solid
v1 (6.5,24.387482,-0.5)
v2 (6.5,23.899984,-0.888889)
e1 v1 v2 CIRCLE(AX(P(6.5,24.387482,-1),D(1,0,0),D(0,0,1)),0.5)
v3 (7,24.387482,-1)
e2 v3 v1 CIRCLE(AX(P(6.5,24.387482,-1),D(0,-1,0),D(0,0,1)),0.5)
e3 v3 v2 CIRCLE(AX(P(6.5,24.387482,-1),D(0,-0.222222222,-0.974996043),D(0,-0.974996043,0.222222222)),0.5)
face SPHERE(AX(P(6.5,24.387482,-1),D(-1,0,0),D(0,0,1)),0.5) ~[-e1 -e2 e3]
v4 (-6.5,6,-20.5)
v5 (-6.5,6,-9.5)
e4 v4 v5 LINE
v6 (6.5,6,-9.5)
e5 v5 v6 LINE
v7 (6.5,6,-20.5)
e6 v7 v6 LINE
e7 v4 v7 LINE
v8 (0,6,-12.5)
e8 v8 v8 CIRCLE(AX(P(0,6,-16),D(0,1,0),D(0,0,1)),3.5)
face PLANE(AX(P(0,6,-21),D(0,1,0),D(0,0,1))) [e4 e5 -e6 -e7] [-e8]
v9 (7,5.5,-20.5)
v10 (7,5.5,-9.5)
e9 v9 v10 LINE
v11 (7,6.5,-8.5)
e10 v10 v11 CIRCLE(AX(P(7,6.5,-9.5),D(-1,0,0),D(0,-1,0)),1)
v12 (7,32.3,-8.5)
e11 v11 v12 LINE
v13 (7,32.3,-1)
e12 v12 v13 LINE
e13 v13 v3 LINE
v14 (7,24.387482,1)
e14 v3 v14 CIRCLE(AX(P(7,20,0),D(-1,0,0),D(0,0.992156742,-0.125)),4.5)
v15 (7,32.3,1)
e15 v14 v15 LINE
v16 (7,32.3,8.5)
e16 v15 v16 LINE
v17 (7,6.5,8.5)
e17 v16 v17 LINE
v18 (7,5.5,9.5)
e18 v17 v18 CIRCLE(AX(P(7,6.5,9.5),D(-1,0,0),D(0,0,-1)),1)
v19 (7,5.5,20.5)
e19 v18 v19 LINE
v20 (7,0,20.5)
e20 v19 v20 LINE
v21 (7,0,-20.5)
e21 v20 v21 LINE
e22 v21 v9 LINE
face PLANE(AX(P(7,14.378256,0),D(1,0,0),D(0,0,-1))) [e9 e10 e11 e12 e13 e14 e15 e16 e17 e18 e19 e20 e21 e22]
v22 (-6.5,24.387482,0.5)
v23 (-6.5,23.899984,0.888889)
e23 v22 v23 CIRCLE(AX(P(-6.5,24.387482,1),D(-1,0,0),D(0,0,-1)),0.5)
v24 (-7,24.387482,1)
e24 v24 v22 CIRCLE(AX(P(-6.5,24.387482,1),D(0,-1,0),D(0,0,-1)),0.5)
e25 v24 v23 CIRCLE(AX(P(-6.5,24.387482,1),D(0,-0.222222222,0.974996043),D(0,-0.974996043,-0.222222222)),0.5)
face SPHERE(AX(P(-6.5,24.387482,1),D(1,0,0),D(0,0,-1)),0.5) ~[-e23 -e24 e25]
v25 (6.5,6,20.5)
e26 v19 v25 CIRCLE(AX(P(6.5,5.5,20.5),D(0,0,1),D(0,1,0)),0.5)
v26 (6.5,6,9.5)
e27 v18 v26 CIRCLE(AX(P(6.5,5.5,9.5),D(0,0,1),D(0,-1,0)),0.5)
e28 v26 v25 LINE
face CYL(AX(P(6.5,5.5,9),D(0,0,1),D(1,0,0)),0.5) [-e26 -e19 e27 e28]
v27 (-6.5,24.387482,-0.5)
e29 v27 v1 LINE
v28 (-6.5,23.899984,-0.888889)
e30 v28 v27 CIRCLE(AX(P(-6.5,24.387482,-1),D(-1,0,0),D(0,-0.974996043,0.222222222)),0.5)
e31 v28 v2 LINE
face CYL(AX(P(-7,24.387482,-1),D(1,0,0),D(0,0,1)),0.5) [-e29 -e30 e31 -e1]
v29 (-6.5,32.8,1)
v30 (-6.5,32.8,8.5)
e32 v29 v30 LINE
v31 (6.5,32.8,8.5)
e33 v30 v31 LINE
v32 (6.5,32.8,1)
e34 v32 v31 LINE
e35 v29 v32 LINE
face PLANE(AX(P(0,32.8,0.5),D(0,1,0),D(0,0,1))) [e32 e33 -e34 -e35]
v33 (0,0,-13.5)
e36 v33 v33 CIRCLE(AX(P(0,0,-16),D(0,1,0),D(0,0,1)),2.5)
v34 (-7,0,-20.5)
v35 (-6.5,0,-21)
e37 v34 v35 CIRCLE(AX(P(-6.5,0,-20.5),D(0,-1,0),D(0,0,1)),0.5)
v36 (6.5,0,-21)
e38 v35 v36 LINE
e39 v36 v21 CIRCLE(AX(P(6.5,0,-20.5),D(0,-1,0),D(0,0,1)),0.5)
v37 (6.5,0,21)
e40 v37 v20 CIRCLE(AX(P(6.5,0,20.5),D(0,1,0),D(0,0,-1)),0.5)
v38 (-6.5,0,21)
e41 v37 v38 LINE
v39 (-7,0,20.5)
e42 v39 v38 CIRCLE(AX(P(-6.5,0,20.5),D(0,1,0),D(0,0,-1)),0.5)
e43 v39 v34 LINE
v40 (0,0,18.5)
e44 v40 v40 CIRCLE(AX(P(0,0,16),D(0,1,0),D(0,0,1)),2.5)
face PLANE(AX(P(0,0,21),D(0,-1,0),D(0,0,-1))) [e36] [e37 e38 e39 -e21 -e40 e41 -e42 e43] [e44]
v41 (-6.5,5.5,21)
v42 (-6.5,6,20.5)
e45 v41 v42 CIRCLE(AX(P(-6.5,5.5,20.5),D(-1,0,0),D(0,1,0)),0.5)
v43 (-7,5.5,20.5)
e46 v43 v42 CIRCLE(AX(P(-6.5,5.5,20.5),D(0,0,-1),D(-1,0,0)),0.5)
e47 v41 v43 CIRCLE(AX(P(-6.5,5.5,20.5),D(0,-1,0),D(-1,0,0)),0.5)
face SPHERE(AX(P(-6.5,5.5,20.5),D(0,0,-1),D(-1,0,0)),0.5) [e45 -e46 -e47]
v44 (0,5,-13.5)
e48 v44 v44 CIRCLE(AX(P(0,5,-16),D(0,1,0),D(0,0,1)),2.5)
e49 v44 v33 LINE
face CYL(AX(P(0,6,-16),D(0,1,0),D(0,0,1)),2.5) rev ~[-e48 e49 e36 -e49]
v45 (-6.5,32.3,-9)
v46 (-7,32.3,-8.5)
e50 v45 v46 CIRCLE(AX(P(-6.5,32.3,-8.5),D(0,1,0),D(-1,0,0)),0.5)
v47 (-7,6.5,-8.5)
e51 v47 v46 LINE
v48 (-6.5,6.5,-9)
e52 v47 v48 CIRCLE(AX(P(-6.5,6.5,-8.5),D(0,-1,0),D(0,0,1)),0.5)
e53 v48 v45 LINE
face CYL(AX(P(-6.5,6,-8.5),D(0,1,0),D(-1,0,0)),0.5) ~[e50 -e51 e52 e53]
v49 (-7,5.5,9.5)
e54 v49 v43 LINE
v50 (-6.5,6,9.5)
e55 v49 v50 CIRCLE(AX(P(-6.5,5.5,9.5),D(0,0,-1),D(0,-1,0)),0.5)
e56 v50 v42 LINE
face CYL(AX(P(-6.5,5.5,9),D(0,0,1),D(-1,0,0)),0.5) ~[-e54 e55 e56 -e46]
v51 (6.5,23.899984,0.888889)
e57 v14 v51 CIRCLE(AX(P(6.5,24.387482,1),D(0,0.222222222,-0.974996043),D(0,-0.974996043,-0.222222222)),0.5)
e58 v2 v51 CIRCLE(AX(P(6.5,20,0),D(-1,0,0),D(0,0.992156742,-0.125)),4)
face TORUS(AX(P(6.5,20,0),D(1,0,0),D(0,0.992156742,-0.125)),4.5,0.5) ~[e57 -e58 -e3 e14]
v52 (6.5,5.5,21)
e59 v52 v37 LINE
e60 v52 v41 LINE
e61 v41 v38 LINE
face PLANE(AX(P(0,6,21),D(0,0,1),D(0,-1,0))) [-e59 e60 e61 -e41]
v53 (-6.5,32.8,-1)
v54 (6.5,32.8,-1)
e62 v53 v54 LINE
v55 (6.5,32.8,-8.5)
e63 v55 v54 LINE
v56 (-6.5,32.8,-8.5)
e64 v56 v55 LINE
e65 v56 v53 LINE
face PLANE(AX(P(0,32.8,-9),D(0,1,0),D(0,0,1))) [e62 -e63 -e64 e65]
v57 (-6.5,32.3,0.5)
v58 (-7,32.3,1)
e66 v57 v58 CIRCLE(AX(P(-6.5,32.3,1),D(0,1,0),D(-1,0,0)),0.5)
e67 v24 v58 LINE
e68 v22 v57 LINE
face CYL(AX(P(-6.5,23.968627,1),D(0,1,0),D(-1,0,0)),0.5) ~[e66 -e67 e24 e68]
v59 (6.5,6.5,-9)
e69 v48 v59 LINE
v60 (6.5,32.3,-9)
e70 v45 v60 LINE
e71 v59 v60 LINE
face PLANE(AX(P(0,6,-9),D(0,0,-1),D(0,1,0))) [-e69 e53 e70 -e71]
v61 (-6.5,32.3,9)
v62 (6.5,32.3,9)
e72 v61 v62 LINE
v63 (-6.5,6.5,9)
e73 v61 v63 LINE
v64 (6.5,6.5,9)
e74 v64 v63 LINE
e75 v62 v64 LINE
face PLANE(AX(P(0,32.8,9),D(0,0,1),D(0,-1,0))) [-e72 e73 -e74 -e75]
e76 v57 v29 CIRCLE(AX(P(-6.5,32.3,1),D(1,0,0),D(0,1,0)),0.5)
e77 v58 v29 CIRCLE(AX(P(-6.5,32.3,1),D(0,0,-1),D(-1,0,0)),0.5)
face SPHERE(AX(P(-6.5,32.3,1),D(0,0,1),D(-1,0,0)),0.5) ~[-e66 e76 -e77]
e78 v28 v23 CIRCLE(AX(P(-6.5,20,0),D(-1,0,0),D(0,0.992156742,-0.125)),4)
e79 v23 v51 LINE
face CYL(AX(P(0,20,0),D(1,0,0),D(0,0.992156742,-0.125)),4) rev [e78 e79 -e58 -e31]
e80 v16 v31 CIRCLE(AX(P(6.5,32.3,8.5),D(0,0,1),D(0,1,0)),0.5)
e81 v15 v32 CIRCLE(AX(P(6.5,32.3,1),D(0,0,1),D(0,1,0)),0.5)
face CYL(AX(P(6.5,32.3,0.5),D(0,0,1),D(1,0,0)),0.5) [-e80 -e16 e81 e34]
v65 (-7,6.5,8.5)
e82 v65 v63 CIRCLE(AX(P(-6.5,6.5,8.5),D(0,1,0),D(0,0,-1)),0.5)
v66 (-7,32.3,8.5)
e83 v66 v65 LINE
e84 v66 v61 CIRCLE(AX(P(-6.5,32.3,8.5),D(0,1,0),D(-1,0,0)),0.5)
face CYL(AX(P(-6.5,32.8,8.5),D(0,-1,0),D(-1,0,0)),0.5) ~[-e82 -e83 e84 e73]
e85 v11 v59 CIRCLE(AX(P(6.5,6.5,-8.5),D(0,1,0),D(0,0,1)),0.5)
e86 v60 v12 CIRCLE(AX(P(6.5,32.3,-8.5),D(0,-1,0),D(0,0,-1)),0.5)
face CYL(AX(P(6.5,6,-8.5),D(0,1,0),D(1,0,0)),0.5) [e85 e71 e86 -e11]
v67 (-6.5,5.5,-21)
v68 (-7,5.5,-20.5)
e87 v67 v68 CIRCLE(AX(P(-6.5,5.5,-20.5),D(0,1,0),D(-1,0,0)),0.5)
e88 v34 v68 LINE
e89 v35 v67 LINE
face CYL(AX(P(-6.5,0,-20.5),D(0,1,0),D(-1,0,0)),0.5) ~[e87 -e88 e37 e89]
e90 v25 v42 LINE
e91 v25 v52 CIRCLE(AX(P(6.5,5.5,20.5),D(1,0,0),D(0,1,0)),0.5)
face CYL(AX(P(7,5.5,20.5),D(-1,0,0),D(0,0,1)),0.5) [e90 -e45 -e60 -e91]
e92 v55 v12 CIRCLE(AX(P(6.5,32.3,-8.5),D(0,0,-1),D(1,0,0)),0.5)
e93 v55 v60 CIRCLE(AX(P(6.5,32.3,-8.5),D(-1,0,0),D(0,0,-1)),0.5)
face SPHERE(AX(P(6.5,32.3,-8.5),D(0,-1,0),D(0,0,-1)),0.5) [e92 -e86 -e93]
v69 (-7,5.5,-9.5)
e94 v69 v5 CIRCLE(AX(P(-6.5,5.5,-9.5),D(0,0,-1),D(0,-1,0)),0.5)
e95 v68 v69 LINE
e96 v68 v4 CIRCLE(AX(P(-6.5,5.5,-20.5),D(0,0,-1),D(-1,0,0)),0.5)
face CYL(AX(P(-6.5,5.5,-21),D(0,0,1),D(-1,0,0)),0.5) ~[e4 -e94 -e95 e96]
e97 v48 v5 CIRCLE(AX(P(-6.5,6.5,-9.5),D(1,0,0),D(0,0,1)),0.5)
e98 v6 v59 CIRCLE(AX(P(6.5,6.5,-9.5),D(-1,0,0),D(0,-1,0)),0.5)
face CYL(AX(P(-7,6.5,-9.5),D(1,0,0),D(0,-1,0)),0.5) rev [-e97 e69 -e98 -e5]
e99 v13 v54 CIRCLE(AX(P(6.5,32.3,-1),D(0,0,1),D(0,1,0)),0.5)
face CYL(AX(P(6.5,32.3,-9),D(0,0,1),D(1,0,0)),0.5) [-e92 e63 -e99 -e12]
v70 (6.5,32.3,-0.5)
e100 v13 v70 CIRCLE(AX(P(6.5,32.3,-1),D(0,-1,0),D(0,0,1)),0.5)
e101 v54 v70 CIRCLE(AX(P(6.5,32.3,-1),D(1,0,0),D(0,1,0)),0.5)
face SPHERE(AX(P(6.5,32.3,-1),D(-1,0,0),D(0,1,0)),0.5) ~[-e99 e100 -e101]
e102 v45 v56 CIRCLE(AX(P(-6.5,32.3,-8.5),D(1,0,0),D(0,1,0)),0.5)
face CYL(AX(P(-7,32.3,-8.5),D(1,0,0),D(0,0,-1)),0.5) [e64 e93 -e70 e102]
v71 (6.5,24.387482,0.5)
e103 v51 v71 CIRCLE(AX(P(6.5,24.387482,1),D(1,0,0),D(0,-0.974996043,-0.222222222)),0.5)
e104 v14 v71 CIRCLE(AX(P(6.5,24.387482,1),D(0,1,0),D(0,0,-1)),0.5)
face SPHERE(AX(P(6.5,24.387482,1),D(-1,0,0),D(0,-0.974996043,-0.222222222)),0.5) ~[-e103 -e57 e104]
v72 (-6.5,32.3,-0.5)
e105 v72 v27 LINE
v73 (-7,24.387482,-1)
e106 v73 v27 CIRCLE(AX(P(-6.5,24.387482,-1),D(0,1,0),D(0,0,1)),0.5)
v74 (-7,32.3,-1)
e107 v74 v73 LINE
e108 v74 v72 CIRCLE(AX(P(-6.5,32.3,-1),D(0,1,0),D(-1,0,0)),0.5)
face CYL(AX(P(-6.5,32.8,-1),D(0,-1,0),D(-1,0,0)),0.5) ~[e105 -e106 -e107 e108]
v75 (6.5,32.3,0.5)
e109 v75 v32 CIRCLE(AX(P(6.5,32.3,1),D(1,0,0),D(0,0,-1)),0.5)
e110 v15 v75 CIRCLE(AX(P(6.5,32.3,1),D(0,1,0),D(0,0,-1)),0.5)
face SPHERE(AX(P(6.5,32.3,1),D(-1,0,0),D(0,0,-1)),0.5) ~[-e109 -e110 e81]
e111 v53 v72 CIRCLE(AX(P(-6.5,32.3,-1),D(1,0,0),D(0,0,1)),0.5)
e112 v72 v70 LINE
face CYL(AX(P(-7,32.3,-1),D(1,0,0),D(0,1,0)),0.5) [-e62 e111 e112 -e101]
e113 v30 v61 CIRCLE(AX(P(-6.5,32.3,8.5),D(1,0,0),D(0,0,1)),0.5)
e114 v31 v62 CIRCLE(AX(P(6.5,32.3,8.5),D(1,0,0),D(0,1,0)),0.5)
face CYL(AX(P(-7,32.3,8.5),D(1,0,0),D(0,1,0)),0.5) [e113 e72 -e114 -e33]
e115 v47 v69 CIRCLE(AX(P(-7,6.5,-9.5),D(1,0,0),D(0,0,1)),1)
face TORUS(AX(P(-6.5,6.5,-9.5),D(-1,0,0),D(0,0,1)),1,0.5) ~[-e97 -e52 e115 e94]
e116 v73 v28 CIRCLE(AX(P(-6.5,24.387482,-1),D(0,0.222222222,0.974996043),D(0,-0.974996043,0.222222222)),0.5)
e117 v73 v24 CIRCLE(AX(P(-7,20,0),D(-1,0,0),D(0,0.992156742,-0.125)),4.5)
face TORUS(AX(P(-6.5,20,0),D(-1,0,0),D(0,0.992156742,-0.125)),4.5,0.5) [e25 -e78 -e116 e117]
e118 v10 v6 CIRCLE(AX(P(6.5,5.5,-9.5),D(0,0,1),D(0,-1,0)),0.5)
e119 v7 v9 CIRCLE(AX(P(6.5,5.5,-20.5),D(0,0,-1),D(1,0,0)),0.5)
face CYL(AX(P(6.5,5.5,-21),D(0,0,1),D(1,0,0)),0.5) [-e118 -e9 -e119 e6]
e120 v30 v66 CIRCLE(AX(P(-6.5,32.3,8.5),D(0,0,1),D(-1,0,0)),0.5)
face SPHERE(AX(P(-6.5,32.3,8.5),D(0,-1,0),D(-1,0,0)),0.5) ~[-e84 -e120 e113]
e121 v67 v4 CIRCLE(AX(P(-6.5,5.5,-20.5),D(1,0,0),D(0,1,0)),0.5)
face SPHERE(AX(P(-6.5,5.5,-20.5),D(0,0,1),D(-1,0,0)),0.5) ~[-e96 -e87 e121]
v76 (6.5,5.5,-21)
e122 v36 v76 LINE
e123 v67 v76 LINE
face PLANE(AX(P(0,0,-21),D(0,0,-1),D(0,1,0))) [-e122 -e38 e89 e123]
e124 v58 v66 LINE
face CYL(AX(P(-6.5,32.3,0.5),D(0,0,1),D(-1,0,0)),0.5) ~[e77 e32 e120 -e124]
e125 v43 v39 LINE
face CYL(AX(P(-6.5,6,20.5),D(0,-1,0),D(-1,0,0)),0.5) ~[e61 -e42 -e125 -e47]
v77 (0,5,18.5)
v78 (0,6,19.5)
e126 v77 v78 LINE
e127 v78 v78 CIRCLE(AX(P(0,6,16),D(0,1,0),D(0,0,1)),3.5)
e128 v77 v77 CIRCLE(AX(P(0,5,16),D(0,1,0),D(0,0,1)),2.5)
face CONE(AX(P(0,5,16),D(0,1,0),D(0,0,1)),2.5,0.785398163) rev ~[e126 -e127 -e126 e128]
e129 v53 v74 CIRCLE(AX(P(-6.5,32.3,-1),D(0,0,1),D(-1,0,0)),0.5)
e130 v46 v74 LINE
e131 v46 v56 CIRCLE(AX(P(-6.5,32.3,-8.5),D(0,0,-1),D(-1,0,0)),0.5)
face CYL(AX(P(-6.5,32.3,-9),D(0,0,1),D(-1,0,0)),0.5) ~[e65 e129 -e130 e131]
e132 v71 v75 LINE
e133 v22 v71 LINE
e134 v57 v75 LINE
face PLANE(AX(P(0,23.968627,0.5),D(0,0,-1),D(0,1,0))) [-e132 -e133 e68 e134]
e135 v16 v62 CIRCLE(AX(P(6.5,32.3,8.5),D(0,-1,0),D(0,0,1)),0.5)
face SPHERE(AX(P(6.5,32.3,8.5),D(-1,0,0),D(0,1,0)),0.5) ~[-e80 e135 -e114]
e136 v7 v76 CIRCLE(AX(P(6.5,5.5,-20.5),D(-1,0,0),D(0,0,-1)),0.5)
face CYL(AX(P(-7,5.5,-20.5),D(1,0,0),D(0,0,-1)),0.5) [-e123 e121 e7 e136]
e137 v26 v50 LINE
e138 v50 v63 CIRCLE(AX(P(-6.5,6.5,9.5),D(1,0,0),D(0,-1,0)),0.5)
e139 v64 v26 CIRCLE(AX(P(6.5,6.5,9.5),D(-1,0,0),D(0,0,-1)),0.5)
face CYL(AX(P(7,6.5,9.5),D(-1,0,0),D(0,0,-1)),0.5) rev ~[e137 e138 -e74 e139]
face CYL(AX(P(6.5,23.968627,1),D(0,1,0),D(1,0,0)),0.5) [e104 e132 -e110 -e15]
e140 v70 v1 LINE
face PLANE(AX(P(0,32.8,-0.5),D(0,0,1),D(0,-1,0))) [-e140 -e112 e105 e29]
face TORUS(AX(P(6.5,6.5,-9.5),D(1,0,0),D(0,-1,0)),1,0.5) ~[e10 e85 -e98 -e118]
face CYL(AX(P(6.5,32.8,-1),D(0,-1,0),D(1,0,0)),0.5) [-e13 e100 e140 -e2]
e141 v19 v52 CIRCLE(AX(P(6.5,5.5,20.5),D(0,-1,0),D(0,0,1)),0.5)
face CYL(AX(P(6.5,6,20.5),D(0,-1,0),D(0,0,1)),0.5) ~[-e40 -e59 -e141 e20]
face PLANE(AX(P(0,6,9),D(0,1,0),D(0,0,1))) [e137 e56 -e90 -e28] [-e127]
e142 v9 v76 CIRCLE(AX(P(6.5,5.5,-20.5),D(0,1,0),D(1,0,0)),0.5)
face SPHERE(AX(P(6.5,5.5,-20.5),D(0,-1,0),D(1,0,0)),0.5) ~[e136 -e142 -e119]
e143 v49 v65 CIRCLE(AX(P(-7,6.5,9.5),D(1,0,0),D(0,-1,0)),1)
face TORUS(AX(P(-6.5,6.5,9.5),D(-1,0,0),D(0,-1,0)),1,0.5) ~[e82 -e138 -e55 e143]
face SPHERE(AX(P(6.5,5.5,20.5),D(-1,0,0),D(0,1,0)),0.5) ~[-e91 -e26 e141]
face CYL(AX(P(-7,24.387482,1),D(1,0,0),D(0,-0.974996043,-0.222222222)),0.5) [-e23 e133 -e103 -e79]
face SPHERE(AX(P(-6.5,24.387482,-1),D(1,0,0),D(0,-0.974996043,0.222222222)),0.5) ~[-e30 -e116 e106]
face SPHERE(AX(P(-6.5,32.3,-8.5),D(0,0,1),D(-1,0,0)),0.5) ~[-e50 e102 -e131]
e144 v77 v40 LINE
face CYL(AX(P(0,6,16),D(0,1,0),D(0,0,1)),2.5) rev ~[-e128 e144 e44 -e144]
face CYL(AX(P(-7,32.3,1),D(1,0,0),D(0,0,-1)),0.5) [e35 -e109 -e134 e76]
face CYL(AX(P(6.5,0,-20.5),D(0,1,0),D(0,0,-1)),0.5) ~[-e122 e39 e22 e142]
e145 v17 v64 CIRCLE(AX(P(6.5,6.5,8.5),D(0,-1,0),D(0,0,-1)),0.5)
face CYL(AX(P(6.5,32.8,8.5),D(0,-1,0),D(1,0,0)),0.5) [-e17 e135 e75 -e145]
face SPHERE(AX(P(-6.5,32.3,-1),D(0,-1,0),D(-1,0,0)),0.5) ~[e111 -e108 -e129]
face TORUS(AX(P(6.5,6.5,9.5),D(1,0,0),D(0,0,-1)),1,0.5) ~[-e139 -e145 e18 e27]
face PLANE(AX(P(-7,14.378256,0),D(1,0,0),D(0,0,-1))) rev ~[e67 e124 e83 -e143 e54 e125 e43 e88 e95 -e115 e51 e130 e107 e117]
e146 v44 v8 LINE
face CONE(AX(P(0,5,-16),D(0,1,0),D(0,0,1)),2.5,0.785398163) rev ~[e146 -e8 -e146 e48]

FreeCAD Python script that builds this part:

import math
import FreeCAD as App
import Part
import Sketcher
from FreeCAD import Vector
Q = App.Units.Quantity


def edges_at(feature, points):
    """Names of the edges that pass closest to the given points."""
    edges = feature.Shape.Edges
    near = lambda p: min(range(len(edges)), key=lambda i: edges[i].distToShape(Part.Vertex(*p))[0])
    return sorted({f"Edge{near(p) + 1}" for p in points})

doc = App.newDocument("Part")
body = doc.addObject("PartDesign::Body", "Body")

sketch1 = body.newObject("Sketcher::SketchObject", "Sketch")
sketch1.AttachmentSupport = (doc.getObject("YZ_Plane"), [""])
sketch1.MapMode = "FlatFace"
sketch1.addGeometry([
    Part.LineSegment(Vector(0, 21, 0), Vector(0, -21, 0)),
    Part.LineSegment(Vector(0, -21, 0), Vector(6, -21, 0)),
    Part.LineSegment(Vector(6, -21, 0), Vector(6, -9, 0)),
    Part.LineSegment(Vector(6, -9, 0), Vector(32.8, -9, 0)),
    Part.LineSegment(Vector(32.8, -9, 0), Vector(32.8, -0.5, 0)),
    Part.LineSegment(Vector(32.8, -0.5, 0), Vector(24, -0.5, 0)),
    Part.ArcOfCircle(Part.Circle(Vector(20, 0, 0), Vector(0, 0, 1), 4), math.radians(7), math.radians(353)),
    Part.LineSegment(Vector(24, 0.5, 0), Vector(32.8, 0.5, 0)),
    Part.LineSegment(Vector(32.8, 0.5, 0), Vector(32.8, 9, 0)),
    Part.LineSegment(Vector(32.8, 9, 0), Vector(6, 9, 0)),
    Part.LineSegment(Vector(6, 9, 0), Vector(6, 21, 0)),
    Part.LineSegment(Vector(6, 21, 0), Vector(0, 21, 0)),
], False)
sketch1.addConstraint([
    Sketcher.Constraint("Coincident", 0, 2, 1, 1),
    Sketcher.Constraint("Coincident", 1, 2, 2, 1),
    Sketcher.Constraint("Coincident", 2, 2, 3, 1),
    Sketcher.Constraint("Coincident", 3, 2, 4, 1),
    Sketcher.Constraint("Coincident", 4, 2, 5, 1),
    Sketcher.Constraint("Coincident", 5, 2, 6, 2),
    Sketcher.Constraint("Coincident", 6, 1, 7, 1),
    Sketcher.Constraint("Coincident", 7, 2, 8, 1),
    Sketcher.Constraint("Coincident", 8, 2, 9, 1),
    Sketcher.Constraint("Coincident", 9, 2, 10, 1),
    Sketcher.Constraint("Coincident", 10, 2, 11, 1),
    Sketcher.Constraint("Coincident", 11, 2, 0, 1),
    Sketcher.Constraint("Vertical", 0),
    Sketcher.Constraint("Horizontal", 1),
    Sketcher.Constraint("Vertical", 2),
    Sketcher.Constraint("Horizontal", 3),
    Sketcher.Constraint("Vertical", 4),
    Sketcher.Constraint("Horizontal", 5),
    Sketcher.Constraint("Horizontal", 7),
    Sketcher.Constraint("Vertical", 8),
    Sketcher.Constraint("Horizontal", 9),
    Sketcher.Constraint("Vertical", 10),
    Sketcher.Constraint("Horizontal", 11),
    Sketcher.Constraint("Symmetric", 0, 2, 11, 2, -1, 1),
    Sketcher.Constraint("Symmetric", 5, 2, 6, 1, -1),
    Sketcher.Constraint("Symmetric", 3, 2, 8, 2, -1),
    Sketcher.Constraint("Vertical", 2, 2, 9, 2),
    Sketcher.Constraint("Radius", 6, Q("4 mm")),
    Sketcher.Constraint("DistanceX", 1, 1, 1, 2, Q("6 mm")),
    Sketcher.Constraint("DistanceY", 0, 2, 0, 1, Q("42 mm")),
    Sketcher.Constraint("DistanceY", 2, 1, 2, 2, Q("12 mm")),
    Sketcher.Constraint("DistanceX", 3, 1, 3, 2, Q("26.8 mm")),
    Sketcher.Constraint("DistanceY", 4, 1, 4, 2, Q("8.5 mm")),
    Sketcher.Constraint("DistanceX", -1, 1, 6, 3, Q("20 mm")),
])
pad1 = body.newObject("PartDesign::Pad", "Pad")
pad1.Profile = sketch1
pad1.Length = 14
pad1.Midplane = True

sketch2 = body.newObject("Sketcher::SketchObject", "Sketch001")
sketch2.AttachmentSupport = (doc.getObject("XZ_Plane"), [""])
sketch2.MapMode = "FlatFace"
sketch2.AttachmentOffset = App.Placement(Vector(0, 0, -6), App.Rotation())
sketch2.addGeometry([
    Part.Circle(Vector(0, -16, 0), Vector(0, 0, 1), 2.5),
    Part.Circle(Vector(0, 16, 0), Vector(0, 0, 1), 2.5),
], False)
sketch2.addConstraint([
    Sketcher.Constraint("Equal", 0, 1),
    Sketcher.Constraint("Symmetric", 0, 3, 1, 3, -1, 1),
    Sketcher.Constraint("PointOnObject", 0, 3, -2),
    Sketcher.Constraint("Diameter", 0, Q("5 mm")),
    Sketcher.Constraint("DistanceY", 0, 3, -1, 1, Q("16 mm")),
])
pocket1 = body.newObject("PartDesign::Pocket", "Pocket")
pocket1.Profile = sketch2
pocket1.Length = 6
pocket1.Reversed = True
doc.recompute()

fillet = body.newObject("PartDesign::Fillet", "Fillet")
fillet.Base = (pocket1, edges_at(pocket1, [
    (-7, 6, 15),
    (-7, 19.4, 9),
    (7, 3, -21),
    (-7, 32.8, 4.75),
    (-7, 28.384, 0.5),
    (-7, 16, 0),
    (-7, 28.384, -0.5),
    (-7, 32.8, -4.75),
    (-7, 19.4, -9),
    (-7, 6, -15),
    (-7, 3, -21),
    (-7, 3, 21),
    (7, 6, -15),
    (0, 6, 21),
    (0, 6, 9),
    (0, 32.8, 9),
    (7, 19.4, -9),
    (0, 32.8, 0.5),
    (0, 23.969, 0.5),
    (0, 23.969, -0.5),
    (0, 32.8, -0.5),
    (0, 32.8, -9),
    (0, 6, -9),
    (0, 6, -21),
    (7, 32.8, -4.75),
    (7, 28.384, -0.5),
    (7, 16, 0),
    (7, 28.384, 0.5),
    (7, 32.8, 4.75),
    (7, 19.4, 9),
    (7, 6, 15),
    (7, 3, 21),
]))
fillet.Radius = 0.5
doc.recompute()

chamfer = body.newObject("PartDesign::Chamfer", "Chamfer")
chamfer.Base = (fillet, edges_at(fillet, [(0, 6, -18.5), (0, 6, 13.5)]))
chamfer.Size = 1

doc.recompute()
